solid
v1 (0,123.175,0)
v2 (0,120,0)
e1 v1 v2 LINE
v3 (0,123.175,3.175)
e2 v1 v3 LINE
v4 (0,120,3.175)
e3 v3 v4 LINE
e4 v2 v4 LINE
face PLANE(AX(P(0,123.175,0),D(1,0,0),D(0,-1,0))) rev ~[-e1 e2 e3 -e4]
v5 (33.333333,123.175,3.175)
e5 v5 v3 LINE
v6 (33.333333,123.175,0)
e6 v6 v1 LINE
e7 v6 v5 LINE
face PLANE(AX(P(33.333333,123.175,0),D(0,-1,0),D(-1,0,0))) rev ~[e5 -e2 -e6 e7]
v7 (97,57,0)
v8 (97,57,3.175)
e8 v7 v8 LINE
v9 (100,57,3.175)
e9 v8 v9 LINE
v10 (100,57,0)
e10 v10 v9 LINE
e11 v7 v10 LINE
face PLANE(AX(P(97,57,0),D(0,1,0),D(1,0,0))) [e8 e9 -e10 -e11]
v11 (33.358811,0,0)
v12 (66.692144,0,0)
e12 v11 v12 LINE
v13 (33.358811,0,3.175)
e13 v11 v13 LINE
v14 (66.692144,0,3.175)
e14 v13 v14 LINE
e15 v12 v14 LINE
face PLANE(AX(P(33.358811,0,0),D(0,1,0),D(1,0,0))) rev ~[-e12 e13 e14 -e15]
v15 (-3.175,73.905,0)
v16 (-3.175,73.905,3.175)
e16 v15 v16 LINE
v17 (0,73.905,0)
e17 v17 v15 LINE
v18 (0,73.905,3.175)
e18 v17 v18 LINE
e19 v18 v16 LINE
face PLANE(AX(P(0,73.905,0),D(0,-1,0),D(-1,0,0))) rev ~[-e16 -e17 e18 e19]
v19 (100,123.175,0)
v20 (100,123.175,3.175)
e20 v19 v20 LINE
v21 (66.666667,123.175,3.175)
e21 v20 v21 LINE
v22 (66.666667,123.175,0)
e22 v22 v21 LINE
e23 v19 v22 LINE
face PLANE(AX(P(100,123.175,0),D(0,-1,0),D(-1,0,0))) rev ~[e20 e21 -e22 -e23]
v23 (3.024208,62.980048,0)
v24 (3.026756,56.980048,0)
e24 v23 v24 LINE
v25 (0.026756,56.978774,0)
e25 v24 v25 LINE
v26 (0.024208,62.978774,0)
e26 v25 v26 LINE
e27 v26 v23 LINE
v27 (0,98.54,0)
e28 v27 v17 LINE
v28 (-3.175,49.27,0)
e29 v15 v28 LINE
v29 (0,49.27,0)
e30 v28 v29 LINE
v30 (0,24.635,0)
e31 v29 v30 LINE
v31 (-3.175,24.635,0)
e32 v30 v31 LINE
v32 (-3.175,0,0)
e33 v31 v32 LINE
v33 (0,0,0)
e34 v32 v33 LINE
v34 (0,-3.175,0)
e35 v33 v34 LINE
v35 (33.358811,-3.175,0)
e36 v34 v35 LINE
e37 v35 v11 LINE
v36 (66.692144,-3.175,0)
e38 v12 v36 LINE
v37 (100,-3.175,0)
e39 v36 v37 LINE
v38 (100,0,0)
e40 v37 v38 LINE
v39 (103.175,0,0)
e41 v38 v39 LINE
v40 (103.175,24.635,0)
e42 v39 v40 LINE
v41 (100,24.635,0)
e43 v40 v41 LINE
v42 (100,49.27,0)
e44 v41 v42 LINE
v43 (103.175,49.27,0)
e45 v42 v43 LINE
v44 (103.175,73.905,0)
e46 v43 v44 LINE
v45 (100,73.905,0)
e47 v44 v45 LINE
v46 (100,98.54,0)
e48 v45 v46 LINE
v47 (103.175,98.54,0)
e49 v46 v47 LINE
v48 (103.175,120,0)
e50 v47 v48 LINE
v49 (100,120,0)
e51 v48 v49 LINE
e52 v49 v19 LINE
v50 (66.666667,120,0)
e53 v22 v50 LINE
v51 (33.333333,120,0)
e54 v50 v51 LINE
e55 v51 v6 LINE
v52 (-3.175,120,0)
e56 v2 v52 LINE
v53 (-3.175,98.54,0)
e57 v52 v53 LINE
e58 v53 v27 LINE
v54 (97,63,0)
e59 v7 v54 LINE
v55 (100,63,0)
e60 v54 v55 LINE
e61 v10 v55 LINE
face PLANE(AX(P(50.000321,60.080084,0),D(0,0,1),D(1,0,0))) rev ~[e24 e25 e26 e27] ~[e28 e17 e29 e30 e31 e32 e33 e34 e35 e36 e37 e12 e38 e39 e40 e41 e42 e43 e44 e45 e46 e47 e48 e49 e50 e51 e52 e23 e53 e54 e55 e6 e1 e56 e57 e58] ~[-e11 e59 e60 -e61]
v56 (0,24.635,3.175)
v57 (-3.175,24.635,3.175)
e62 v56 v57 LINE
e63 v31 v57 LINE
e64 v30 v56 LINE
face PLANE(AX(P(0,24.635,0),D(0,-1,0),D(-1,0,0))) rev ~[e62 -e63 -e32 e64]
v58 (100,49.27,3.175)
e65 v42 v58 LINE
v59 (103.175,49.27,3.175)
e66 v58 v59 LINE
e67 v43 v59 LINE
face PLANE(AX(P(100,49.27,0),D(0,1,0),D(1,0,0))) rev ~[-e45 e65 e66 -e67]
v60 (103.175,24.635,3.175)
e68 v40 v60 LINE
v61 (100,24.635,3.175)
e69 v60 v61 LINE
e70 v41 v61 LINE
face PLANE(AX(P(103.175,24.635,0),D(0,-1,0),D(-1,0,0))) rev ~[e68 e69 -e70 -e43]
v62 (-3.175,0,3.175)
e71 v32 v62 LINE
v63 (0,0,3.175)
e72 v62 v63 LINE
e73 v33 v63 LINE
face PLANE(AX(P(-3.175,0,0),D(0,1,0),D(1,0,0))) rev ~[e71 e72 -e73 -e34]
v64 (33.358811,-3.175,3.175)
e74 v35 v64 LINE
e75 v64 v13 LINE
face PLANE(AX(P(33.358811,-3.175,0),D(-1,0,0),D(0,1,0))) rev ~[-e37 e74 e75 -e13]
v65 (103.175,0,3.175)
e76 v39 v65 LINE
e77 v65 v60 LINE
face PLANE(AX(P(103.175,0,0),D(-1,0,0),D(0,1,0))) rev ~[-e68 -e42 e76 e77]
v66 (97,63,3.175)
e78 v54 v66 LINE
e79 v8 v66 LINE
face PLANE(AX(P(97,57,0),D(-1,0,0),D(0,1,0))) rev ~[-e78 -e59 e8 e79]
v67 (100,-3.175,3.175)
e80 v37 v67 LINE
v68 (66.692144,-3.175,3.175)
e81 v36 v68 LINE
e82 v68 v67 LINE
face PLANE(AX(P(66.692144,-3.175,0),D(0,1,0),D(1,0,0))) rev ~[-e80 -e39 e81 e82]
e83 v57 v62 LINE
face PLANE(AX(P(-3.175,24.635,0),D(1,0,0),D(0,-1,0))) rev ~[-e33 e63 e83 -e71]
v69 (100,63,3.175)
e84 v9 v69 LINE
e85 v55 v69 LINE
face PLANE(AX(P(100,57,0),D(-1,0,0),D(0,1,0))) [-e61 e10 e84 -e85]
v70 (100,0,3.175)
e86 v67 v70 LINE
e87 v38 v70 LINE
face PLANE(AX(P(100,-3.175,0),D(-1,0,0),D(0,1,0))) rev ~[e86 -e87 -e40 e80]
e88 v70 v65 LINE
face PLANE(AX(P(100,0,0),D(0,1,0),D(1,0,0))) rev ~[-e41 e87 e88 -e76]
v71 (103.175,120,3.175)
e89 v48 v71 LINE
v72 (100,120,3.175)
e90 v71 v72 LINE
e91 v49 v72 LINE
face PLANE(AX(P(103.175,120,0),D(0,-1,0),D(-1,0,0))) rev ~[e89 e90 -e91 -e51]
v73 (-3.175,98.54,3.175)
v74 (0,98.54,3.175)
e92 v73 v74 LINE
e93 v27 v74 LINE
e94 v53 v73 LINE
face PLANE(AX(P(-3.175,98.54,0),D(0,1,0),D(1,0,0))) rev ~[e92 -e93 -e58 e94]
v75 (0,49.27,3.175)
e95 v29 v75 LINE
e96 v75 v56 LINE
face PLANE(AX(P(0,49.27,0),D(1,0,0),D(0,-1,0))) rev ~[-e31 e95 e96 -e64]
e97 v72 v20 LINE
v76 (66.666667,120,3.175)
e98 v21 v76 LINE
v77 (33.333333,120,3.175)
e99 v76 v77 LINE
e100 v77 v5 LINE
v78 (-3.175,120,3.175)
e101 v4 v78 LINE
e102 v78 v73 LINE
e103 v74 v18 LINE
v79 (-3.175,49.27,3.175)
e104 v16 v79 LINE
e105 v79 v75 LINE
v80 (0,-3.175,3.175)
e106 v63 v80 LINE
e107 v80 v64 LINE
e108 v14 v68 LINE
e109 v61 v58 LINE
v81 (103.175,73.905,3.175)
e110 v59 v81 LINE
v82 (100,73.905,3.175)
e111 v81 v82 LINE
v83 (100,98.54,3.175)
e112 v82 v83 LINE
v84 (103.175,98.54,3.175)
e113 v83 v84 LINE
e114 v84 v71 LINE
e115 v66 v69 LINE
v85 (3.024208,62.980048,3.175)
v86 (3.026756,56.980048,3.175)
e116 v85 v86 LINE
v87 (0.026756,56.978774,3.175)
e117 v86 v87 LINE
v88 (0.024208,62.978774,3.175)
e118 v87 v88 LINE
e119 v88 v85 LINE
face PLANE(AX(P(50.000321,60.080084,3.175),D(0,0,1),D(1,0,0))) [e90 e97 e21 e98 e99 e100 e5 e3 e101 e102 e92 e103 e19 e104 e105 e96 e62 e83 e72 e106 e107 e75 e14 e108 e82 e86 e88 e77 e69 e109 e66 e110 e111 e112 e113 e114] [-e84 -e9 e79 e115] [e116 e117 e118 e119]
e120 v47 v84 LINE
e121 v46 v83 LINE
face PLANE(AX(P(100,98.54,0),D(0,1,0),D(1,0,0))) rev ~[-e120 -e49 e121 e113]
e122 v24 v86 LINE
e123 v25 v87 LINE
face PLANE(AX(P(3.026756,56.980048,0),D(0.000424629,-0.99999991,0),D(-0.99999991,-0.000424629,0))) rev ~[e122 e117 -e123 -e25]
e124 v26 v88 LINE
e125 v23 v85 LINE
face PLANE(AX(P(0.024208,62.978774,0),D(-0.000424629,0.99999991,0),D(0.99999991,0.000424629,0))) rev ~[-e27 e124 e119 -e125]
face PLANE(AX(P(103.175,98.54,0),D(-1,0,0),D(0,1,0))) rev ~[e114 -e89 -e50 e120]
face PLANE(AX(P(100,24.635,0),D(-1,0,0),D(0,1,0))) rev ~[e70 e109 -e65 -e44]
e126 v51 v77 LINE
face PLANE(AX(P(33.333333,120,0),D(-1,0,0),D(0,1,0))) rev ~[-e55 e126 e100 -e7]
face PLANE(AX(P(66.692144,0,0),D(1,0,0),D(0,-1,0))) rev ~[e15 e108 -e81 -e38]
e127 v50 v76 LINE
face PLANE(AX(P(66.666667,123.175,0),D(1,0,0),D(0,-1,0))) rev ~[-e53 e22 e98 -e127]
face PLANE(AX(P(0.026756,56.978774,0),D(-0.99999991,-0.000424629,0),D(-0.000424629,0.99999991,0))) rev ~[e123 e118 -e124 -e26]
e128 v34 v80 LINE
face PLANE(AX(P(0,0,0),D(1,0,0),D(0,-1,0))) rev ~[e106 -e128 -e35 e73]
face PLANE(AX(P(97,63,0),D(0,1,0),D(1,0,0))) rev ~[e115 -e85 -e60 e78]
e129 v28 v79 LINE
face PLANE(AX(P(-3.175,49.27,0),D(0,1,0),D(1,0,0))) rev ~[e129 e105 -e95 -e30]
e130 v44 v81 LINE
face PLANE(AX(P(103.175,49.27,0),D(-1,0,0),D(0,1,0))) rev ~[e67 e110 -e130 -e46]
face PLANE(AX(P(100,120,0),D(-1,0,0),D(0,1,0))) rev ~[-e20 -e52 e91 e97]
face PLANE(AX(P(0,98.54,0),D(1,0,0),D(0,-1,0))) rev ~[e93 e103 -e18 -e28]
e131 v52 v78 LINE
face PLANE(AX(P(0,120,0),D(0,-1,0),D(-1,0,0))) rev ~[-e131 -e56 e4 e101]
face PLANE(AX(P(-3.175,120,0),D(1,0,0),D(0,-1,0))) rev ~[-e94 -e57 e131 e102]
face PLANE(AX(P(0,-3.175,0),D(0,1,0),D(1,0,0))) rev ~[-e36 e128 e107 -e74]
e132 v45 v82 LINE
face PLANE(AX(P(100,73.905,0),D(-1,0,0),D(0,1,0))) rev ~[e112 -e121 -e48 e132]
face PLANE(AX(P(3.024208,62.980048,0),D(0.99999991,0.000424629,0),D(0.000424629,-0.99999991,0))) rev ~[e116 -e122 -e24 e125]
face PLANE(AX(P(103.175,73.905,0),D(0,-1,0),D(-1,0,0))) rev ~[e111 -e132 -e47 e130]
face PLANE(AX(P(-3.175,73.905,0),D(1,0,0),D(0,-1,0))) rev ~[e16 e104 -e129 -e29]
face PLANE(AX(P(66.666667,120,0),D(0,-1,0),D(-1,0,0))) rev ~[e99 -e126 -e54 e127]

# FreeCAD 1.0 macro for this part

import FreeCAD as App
import Part
import Sketcher
Q = App.Units.Quantity

doc = App.newDocument("Part")
params = doc.addObject("Spreadsheet::Sheet", "Params")
for row, (alias, value) in enumerate([
    ("sketch1_width", "3 mm"),
    ("sketch1_height", "6 mm"),
    ("sketch1_length", "3 mm"),
    ("sketch1_length2", "6 mm"),
    ("sketch1_height2", "21.46 mm"),
    ("pad1_length", "3.175 mm"),
], start=1):
    params.set(f"A{row}", alias)
    params.set(f"B{row}", "=" + value)
    params.setAlias(f"B{row}", alias)

body = doc.addObject("PartDesign::Body", "Body")

# Sketch on XY plane
sketch1 = body.newObject("Sketcher::SketchObject", "Sketch")
sketch1.AttachmentSupport = (doc.getObject("XY_Plane"), [""])
sketch1.MapMode = "FlatFace"
sketch1.addGeometry([
    Part.LineSegment(App.Vector(0, 120, 0), App.Vector(-3.175, 120, 0)),  # 0
    Part.LineSegment(App.Vector(-3.175, 120, 0), App.Vector(-3.175, 98.54, 0)),  # 1
    Part.LineSegment(App.Vector(-3.175, 98.54, 0), App.Vector(0, 98.54, 0)),  # 2
    Part.LineSegment(App.Vector(0, 98.54, 0), App.Vector(0, 73.905, 0)),  # 3
    Part.LineSegment(App.Vector(0, 73.905, 0), App.Vector(-3.175, 73.905, 0)),  # 4
    Part.LineSegment(App.Vector(-3.175, 73.905, 0), App.Vector(-3.175, 49.27, 0)),  # 5
    Part.LineSegment(App.Vector(-3.175, 49.27, 0), App.Vector(0, 49.27, 0)),  # 6
    Part.LineSegment(App.Vector(0, 49.27, 0), App.Vector(0, 24.635, 0)),  # 7
    Part.LineSegment(App.Vector(0, 24.635, 0), App.Vector(-3.175, 24.635, 0)),  # 8
    Part.LineSegment(App.Vector(-3.175, 24.635, 0), App.Vector(-3.175, 0, 0)),  # 9
    Part.LineSegment(App.Vector(-3.175, 0, 0), App.Vector(0, 0, 0)),  # 10
    Part.LineSegment(App.Vector(0, 0, 0), App.Vector(0, -3.175, 0)),  # 11
    Part.LineSegment(App.Vector(0, -3.175, 0), App.Vector(33.358811, -3.175, 0)),  # 12
    Part.LineSegment(App.Vector(33.358811, -3.175, 0), App.Vector(33.358811, 0, 0)),  # 13
    Part.LineSegment(App.Vector(33.358811, 0, 0), App.Vector(66.692144, 0, 0)),  # 14
    Part.LineSegment(App.Vector(66.692144, 0, 0), App.Vector(66.692144, -3.175, 0)),  # 15
    Part.LineSegment(App.Vector(66.692144, -3.175, 0), App.Vector(100, -3.175, 0)),  # 16
    Part.LineSegment(App.Vector(100, -3.175, 0), App.Vector(100, 0, 0)),  # 17
    Part.LineSegment(App.Vector(100, 0, 0), App.Vector(103.175, 0, 0)),  # 18
    Part.LineSegment(App.Vector(103.175, 0, 0), App.Vector(103.175, 24.635, 0)),  # 19
    Part.LineSegment(App.Vector(103.175, 24.635, 0), App.Vector(100, 24.635, 0)),  # 20
    Part.LineSegment(App.Vector(100, 24.635, 0), App.Vector(100, 49.27, 0)),  # 21
    Part.LineSegment(App.Vector(100, 49.27, 0), App.Vector(103.175, 49.27, 0)),  # 22
    Part.LineSegment(App.Vector(103.175, 49.27, 0), App.Vector(103.175, 73.905, 0)),  # 23
    Part.LineSegment(App.Vector(103.175, 73.905, 0), App.Vector(100, 73.905, 0)),  # 24
    Part.LineSegment(App.Vector(100, 73.905, 0), App.Vector(100, 98.54, 0)),  # 25
    Part.LineSegment(App.Vector(100, 98.54, 0), App.Vector(103.175, 98.54, 0)),  # 26
    Part.LineSegment(App.Vector(103.175, 98.54, 0), App.Vector(103.175, 120, 0)),  # 27
    Part.LineSegment(App.Vector(103.175, 120, 0), App.Vector(100, 120, 0)),  # 28
    Part.LineSegment(App.Vector(100, 120, 0), App.Vector(100, 123.175, 0)),  # 29
    Part.LineSegment(App.Vector(100, 123.175, 0), App.Vector(66.666667, 123.175, 0)),  # 30
    Part.LineSegment(App.Vector(66.666667, 123.175, 0), App.Vector(66.666667, 120, 0)),  # 31
    Part.LineSegment(App.Vector(66.666667, 120, 0), App.Vector(33.333333, 120, 0)),  # 32
    Part.LineSegment(App.Vector(33.333333, 120, 0), App.Vector(33.333333, 123.175, 0)),  # 33
    Part.LineSegment(App.Vector(33.333333, 123.175, 0), App.Vector(0, 123.175, 0)),  # 34
    Part.LineSegment(App.Vector(0, 123.175, 0), App.Vector(0, 120, 0)),  # 35
    Part.LineSegment(App.Vector(0.024208, 62.978774, 0), App.Vector(3.024208, 62.980048, 0)),  # 36
    Part.LineSegment(App.Vector(3.024208, 62.980048, 0), App.Vector(3.026756, 56.980048, 0)),  # 37
    Part.LineSegment(App.Vector(3.026756, 56.980048, 0), App.Vector(0.026756, 56.978774, 0)),  # 38
    Part.LineSegment(App.Vector(0.026756, 56.978774, 0), App.Vector(0.024208, 62.978774, 0)),  # 39
    Part.LineSegment(App.Vector(100, 57, 0), App.Vector(97, 57, 0)),  # 40
    Part.LineSegment(App.Vector(97, 57, 0), App.Vector(97, 63, 0)),  # 41
    Part.LineSegment(App.Vector(97, 63, 0), App.Vector(100, 63, 0)),  # 42
    Part.LineSegment(App.Vector(100, 63, 0), App.Vector(100, 57, 0)),  # 43
], False)
sketch1.addConstraint([
    Sketcher.Constraint("Coincident", 0, 2, 1, 1),
    Sketcher.Constraint("Coincident", 1, 2, 2, 1),
    Sketcher.Constraint("Coincident", 2, 2, 3, 1),
    Sketcher.Constraint("Coincident", 3, 2, 4, 1),
    Sketcher.Constraint("Coincident", 4, 2, 5, 1),
    Sketcher.Constraint("Coincident", 5, 2, 6, 1),
    Sketcher.Constraint("Coincident", 6, 2, 7, 1),
    Sketcher.Constraint("Coincident", 7, 2, 8, 1),
    Sketcher.Constraint("Coincident", 8, 2, 9, 1),
    Sketcher.Constraint("Coincident", 9, 2, 10, 1),
    Sketcher.Constraint("Coincident", 10, 2, 11, 1),
    Sketcher.Constraint("Coincident", 11, 2, 12, 1),
    Sketcher.Constraint("Coincident", 12, 2, 13, 1),
    Sketcher.Constraint("Coincident", 13, 2, 14, 1),
    Sketcher.Constraint("Coincident", 14, 2, 15, 1),
    Sketcher.Constraint("Coincident", 15, 2, 16, 1),
    Sketcher.Constraint("Coincident", 16, 2, 17, 1),
    Sketcher.Constraint("Coincident", 17, 2, 18, 1),
    Sketcher.Constraint("Coincident", 18, 2, 19, 1),
    Sketcher.Constraint("Coincident", 19, 2, 20, 1),
    Sketcher.Constraint("Coincident", 20, 2, 21, 1),
    Sketcher.Constraint("Coincident", 21, 2, 22, 1),
    Sketcher.Constraint("Coincident", 22, 2, 23, 1),
    Sketcher.Constraint("Coincident", 23, 2, 24, 1),
    Sketcher.Constraint("Coincident", 24, 2, 25, 1),
    Sketcher.Constraint("Coincident", 25, 2, 26, 1),
    Sketcher.Constraint("Coincident", 26, 2, 27, 1),
    Sketcher.Constraint("Coincident", 27, 2, 28, 1),
    Sketcher.Constraint("Coincident", 28, 2, 29, 1),
    Sketcher.Constraint("Coincident", 29, 2, 30, 1),
    Sketcher.Constraint("Coincident", 30, 2, 31, 1),
    Sketcher.Constraint("Coincident", 31, 2, 32, 1),
    Sketcher.Constraint("Coincident", 32, 2, 33, 1),
    Sketcher.Constraint("Coincident", 33, 2, 34, 1),
    Sketcher.Constraint("Coincident", 34, 2, 35, 1),
    Sketcher.Constraint("Coincident", 35, 2, 0, 1),
    Sketcher.Constraint("Coincident", 36, 2, 37, 1),
    Sketcher.Constraint("Coincident", 37, 2, 38, 1),
    Sketcher.Constraint("Coincident", 38, 2, 39, 1),
    Sketcher.Constraint("Coincident", 39, 2, 36, 1),
    Sketcher.Constraint("Coincident", 40, 2, 41, 1),
    Sketcher.Constraint("Coincident", 41, 2, 42, 1),
    Sketcher.Constraint("Coincident", 42, 2, 43, 1),
    Sketcher.Constraint("Coincident", 43, 2, 40, 1),
    Sketcher.Constraint("Horizontal", 0),
    Sketcher.Constraint("Vertical", 1),
    Sketcher.Constraint("Horizontal", 2),
    Sketcher.Constraint("Vertical", 3),
    Sketcher.Constraint("Horizontal", 4),
    Sketcher.Constraint("Vertical", 5),
    Sketcher.Constraint("Horizontal", 6),
    Sketcher.Constraint("Vertical", 7),
    Sketcher.Constraint("Horizontal", 8),
    Sketcher.Constraint("Vertical", 9),
    Sketcher.Constraint("Horizontal", 10),
    Sketcher.Constraint("Vertical", 11),
    Sketcher.Constraint("Horizontal", 12),
    Sketcher.Constraint("Vertical", 13),
    Sketcher.Constraint("Horizontal", 14),
    Sketcher.Constraint("Vertical", 15),
    Sketcher.Constraint("Horizontal", 16),
    Sketcher.Constraint("Vertical", 17),
    Sketcher.Constraint("Horizontal", 18),
    Sketcher.Constraint("Vertical", 19),
    Sketcher.Constraint("Horizontal", 20),
    Sketcher.Constraint("Vertical", 21),
    Sketcher.Constraint("Horizontal", 22),
    Sketcher.Constraint("Vertical", 23),
    Sketcher.Constraint("Horizontal", 24),
    Sketcher.Constraint("Vertical", 25),
    Sketcher.Constraint("Horizontal", 26),
    Sketcher.Constraint("Vertical", 27),
    Sketcher.Constraint("Horizontal", 28),
    Sketcher.Constraint("Vertical", 29),
    Sketcher.Constraint("Horizontal", 30),
    Sketcher.Constraint("Vertical", 31),
    Sketcher.Constraint("Horizontal", 32),
    Sketcher.Constraint("Vertical", 33),
    Sketcher.Constraint("Horizontal", 34),
    Sketcher.Constraint("Vertical", 35),
    Sketcher.Constraint("Horizontal", 40),
    Sketcher.Constraint("Vertical", 41),
    Sketcher.Constraint("Horizontal", 42),
    Sketcher.Constraint("Vertical", 43),
    Sketcher.Constraint("Coincident", 10, 2, -1, 1),
    Sketcher.Constraint("PointOnObject", 2, 2, -2),
    Sketcher.Constraint("PointOnObject", 6, 2, -2),
    Sketcher.Constraint("PointOnObject", 13, 2, -1),
    Sketcher.Constraint("PointOnObject", 17, 2, -1),
    Sketcher.Constraint("PointOnObject", 34, 2, -2),
    Sketcher.Constraint("Perpendicular", 36, 37),
    Sketcher.Constraint("Perpendicular", 37, 38),
    Sketcher.Constraint("Perpendicular", 38, 39),
    Sketcher.Constraint("Horizontal", 12, 2, 15, 2),
    Sketcher.Constraint("Horizontal", 8, 2, 19, 2),
    Sketcher.Constraint("Horizontal", 6, 2, 21, 2),
    Sketcher.Constraint("Horizontal", 4, 2, 23, 2),
    Sketcher.Constraint("Horizontal", 2, 2, 25, 2),
    Sketcher.Constraint("Horizontal", 0, 2, 27, 2),
    Sketcher.Constraint("Horizontal", 28, 2, 31, 2),
    Sketcher.Constraint("Horizontal", 30, 2, 33, 2),
    Sketcher.Constraint("Vertical", 1, 2, 4, 2),
    Sketcher.Constraint("Vertical", 5, 2, 8, 2),
    Sketcher.Constraint("Vertical", 17, 2, 20, 2),
    Sketcher.Constraint("Vertical", 19, 2, 22, 2),
    Sketcher.Constraint("Vertical", 21, 2, 24, 2),
    Sketcher.Constraint("Vertical", 23, 2, 26, 2),
    Sketcher.Constraint("Vertical", 25, 2, 28, 2),
    Sketcher.Constraint("Vertical", 29, 2, 42, 2),
    Sketcher.Constraint("Equal", 10, 18),
    Sketcher.Constraint("Equal", 14, 30),
    Sketcher.Constraint("Equal", 30, 32),
    Sketcher.Constraint("Equal", 32, 34),
    Sketcher.Constraint("Equal", 3, 5),
    Sketcher.Constraint("Equal", 5, 7),
    Sketcher.Constraint("Equal", 7, 9),
    Sketcher.Constraint("Equal", 28, 11),
    Sketcher.Constraint("Equal", 17, 29),
    Sketcher.Constraint("DistanceX", 40, 2, 40, 1, Q("3 mm")),
    Sketcher.Constraint("DistanceY", 41, 1, 41, 2, Q("6 mm")),
    Sketcher.Constraint("Distance", 36, Q("3 mm")),
    Sketcher.Constraint("Distance", 37, Q("6 mm")),
    Sketcher.Constraint("DistanceY", -1, 1, 0, 2, Q("120 mm")),
    Sketcher.Constraint("DistanceX", -1, 1, 16, 2, Q("100 mm")),
    Sketcher.Constraint("DistanceY", -1, 1, 40, 2, Q("57 mm")),
    Sketcher.Constraint("DistanceY", 1, 2, 1, 1, Q("21.46 mm")),
    Sketcher.Constraint("DistanceX", 0, 2, 0, 1, Q("3.175 mm")),
    Sketcher.Constraint("DistanceX", 12, 1, 12, 2, Q("33.358811 mm")),
    Sketcher.Constraint("DistanceX", -1, 1, 36, 2, Q("3.024208 mm")),
    Sketcher.Constraint("DistanceY", -1, 1, 37, 2, Q("56.980048 mm")),
    Sketcher.Constraint("DistanceX", 38, 2, 36, 2, Q("2.997452 mm")),
])
sketch1.setExpression("Constraints[118]", "Params.sketch1_width")
sketch1.setExpression("Constraints[119]", "Params.sketch1_height")
sketch1.setExpression("Constraints[120]", "Params.sketch1_length")
sketch1.setExpression("Constraints[121]", "Params.sketch1_length2")
sketch1.setExpression("Constraints[125]", "Params.sketch1_height2")
pad1 = body.newObject("PartDesign::Pad", "Pad")
pad1.Profile = sketch1
pad1.setExpression("Length", "Params.pad1_length")

doc.recompute()
